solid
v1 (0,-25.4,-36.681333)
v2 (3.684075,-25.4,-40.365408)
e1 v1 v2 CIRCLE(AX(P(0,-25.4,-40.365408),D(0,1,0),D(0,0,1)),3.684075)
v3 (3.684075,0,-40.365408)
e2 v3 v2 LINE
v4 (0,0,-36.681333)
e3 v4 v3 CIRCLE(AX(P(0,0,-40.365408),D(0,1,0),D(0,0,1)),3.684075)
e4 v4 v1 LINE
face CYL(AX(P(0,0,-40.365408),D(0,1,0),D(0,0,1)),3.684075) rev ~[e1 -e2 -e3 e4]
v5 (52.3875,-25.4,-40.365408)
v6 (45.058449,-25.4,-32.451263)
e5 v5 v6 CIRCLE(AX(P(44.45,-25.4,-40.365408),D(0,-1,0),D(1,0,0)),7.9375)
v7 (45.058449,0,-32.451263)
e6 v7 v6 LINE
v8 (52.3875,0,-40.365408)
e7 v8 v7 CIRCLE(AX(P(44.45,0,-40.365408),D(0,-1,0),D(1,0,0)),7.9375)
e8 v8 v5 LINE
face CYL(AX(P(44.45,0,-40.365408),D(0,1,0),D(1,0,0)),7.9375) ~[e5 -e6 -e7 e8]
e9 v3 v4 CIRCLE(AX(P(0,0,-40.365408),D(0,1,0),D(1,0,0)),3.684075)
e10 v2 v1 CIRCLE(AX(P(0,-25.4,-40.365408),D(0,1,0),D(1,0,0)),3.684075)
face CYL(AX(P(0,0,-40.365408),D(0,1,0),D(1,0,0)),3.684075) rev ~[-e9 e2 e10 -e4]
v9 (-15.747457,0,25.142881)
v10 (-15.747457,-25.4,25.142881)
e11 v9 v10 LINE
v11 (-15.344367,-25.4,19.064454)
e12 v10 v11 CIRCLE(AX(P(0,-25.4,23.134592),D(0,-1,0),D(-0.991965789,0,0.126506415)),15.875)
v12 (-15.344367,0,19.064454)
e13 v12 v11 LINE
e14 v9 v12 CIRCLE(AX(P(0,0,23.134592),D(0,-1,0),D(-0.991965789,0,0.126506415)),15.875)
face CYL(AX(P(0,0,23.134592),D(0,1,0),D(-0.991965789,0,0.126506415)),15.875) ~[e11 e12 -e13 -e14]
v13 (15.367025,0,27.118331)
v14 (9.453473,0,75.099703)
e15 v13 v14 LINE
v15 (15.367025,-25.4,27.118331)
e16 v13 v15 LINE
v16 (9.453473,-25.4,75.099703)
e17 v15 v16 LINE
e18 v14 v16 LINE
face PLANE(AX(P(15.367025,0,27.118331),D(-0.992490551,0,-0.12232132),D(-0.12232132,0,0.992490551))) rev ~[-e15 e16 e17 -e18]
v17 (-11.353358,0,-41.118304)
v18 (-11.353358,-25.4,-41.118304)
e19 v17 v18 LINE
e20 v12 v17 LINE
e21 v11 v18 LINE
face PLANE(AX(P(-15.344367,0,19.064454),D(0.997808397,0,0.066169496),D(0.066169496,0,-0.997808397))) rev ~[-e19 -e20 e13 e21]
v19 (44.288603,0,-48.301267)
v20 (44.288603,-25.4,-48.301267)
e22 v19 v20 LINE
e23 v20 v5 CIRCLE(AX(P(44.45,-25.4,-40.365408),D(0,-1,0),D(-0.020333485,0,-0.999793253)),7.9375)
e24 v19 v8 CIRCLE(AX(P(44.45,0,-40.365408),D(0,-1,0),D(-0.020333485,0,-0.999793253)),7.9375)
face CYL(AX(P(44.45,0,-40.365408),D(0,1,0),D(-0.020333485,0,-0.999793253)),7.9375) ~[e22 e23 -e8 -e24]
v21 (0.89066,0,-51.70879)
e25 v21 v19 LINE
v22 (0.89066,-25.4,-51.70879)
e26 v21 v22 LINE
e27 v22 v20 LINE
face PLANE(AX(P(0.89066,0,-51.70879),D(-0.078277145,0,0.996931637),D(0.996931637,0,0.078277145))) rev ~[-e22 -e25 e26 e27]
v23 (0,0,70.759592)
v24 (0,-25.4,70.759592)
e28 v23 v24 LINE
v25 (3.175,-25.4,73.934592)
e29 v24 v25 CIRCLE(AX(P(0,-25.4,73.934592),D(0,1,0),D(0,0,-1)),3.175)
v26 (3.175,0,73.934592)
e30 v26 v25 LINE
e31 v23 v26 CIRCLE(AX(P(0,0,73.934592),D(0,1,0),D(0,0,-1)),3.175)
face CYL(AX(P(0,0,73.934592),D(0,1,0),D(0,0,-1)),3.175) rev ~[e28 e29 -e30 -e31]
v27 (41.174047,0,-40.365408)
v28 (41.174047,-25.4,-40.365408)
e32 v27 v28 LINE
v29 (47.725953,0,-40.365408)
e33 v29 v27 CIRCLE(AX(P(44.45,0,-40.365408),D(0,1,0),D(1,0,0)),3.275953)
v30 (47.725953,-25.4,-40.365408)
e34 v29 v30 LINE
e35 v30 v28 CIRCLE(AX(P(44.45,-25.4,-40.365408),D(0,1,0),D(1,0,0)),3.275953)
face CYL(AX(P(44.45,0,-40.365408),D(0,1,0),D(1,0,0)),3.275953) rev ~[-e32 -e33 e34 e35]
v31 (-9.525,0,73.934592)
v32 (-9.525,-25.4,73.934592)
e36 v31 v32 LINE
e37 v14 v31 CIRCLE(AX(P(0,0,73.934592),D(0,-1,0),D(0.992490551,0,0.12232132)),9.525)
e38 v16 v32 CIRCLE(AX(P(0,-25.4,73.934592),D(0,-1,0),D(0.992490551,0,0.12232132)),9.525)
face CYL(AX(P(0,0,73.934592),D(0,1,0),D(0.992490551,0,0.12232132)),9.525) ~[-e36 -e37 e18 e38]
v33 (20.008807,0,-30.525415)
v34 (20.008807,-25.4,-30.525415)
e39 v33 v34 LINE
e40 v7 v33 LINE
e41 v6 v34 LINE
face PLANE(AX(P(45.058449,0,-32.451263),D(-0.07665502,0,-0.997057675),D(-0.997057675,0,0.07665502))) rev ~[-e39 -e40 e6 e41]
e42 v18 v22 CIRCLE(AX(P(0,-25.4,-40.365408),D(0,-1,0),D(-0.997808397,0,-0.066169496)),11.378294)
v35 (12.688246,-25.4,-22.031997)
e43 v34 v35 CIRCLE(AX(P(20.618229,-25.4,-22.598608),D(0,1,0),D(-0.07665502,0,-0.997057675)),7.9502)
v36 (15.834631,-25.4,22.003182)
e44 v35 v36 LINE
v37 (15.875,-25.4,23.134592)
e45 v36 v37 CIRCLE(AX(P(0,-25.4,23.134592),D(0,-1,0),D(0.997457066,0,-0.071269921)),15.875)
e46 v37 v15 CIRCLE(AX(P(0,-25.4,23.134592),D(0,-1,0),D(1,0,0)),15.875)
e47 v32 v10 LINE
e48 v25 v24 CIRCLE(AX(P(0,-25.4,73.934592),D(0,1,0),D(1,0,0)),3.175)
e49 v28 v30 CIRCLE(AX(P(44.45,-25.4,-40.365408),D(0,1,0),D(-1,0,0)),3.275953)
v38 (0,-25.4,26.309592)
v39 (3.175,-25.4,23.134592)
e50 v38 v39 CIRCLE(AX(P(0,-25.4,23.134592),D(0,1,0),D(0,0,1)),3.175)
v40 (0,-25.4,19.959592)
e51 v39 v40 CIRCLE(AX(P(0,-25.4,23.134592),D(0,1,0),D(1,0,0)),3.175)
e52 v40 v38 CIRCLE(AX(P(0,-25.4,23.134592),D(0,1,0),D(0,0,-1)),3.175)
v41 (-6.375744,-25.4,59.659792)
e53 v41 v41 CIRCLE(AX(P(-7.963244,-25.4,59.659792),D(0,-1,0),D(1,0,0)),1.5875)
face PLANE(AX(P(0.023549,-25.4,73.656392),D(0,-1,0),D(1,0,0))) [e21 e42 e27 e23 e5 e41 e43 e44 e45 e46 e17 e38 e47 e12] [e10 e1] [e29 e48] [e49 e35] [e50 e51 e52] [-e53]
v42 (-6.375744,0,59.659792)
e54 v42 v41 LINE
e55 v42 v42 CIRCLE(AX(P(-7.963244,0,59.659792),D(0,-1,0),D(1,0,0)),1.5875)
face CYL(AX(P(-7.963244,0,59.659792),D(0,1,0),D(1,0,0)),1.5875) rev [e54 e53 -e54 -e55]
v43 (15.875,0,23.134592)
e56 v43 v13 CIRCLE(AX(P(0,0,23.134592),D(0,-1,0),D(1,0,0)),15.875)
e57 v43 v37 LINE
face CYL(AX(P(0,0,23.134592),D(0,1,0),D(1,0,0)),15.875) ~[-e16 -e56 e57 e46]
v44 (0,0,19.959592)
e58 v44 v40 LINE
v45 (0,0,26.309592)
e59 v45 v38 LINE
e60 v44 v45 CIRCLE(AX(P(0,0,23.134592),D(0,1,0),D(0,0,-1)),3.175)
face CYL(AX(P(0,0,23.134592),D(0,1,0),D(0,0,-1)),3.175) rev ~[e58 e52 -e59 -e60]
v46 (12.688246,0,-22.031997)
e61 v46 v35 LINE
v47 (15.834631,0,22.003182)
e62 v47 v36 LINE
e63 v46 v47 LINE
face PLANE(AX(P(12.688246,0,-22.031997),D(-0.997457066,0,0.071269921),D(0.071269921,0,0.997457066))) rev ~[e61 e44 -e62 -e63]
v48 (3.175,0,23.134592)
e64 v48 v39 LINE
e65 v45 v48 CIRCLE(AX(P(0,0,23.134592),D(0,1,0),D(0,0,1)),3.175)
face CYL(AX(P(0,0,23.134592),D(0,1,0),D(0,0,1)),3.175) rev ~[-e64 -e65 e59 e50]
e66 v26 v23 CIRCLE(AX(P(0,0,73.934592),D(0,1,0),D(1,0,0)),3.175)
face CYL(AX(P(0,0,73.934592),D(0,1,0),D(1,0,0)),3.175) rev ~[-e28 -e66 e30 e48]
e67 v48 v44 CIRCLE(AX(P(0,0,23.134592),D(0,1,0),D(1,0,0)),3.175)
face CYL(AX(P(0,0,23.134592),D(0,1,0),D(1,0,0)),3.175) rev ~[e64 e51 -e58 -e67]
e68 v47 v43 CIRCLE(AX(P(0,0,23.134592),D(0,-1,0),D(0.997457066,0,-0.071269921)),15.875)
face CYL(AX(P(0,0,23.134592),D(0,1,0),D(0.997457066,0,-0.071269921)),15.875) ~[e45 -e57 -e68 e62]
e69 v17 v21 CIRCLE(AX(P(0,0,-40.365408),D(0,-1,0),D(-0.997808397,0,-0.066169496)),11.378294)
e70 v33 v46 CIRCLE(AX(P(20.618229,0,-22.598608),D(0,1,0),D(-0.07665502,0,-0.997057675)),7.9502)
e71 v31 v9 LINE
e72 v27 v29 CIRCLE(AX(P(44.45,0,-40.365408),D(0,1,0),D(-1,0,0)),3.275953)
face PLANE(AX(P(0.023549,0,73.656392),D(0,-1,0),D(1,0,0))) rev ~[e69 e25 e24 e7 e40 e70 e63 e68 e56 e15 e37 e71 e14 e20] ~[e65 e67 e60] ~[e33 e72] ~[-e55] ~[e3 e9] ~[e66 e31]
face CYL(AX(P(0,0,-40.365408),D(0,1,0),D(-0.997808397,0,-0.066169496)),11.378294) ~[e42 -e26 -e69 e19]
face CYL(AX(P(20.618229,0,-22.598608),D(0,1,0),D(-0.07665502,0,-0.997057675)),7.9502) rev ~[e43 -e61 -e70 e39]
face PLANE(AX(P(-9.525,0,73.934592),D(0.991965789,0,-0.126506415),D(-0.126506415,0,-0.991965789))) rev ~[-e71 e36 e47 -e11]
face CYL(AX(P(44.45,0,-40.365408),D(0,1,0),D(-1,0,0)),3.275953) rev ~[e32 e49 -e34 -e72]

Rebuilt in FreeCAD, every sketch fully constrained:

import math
import FreeCAD as App
import Part
import Sketcher
Q = App.Units.Quantity

doc = App.newDocument("Part")
body = doc.addObject("PartDesign::Body", "Body")

# Sketch on XZ plane
sketch1 = doc.addObject("Sketcher::SketchObject", "Sketch")
body.addObject(sketch1)
sketch1.AttachmentSupport = (doc.XZ_Plane, [""])
sketch1.MapMode = "FlatFace"
sketch1.addGeometry([
    Part.ArcOfCircle(Part.Circle(App.Vector(0, -40.4, 0), App.Vector(0, 0, 1), 11.4), math.radians(-176), math.radians(-86)),  # 0
    Part.LineSegment(App.Vector(0.9, -51.7, 0), App.Vector(44.3, -48.3, 0)),  # 1
    Part.ArcOfCircle(Part.Circle(App.Vector(44.5, -40.4, 0), App.Vector(0, 0, 1), 7.9), math.radians(-91), math.radians(0)),  # 2
    Part.ArcOfCircle(Part.Circle(App.Vector(44.5, -40.4, 0), App.Vector(0, 0, 1), 7.9), math.radians(0), math.radians(86)),  # 3
    Part.LineSegment(App.Vector(45.1, -32.5, 0), App.Vector(20, -30.5, 0)),  # 4
    Part.ArcOfCircle(Part.Circle(App.Vector(20.6, -22.6, 0), App.Vector(0, 0, 1), 8), math.radians(176), math.radians(266)),  # 5
    Part.LineSegment(App.Vector(12.7, -22, 0), App.Vector(15.8, 22, 0)),  # 6
    Part.ArcOfCircle(Part.Circle(App.Vector(0, 23.1, 0), App.Vector(0, 0, 1), 15.9), math.radians(-4.09), math.radians(0)),  # 7
    Part.ArcOfCircle(Part.Circle(App.Vector(0, 23.1, 0), App.Vector(0, 0, 1), 15.9), math.radians(0), math.radians(14.53)),  # 8
    Part.LineSegment(App.Vector(15.4, 27.1, 0), App.Vector(9.5, 75.1, 0)),  # 9
    Part.ArcOfCircle(Part.Circle(App.Vector(0, 73.9, 0), App.Vector(0, 0, 1), 9.5), math.radians(7), math.radians(180)),  # 10
    Part.LineSegment(App.Vector(-9.5, 73.9, 0), App.Vector(-15.7, 25.1, 0)),  # 11
    Part.ArcOfCircle(Part.Circle(App.Vector(0, 23.1, 0), App.Vector(0, 0, 1), 15.9), math.radians(173), math.radians(195)),  # 12
    Part.LineSegment(App.Vector(-15.3, 19.1, 0), App.Vector(-11.4, -41.1, 0)),  # 13
    Part.ArcOfCircle(Part.Circle(App.Vector(0, -40.4, 0), App.Vector(0, 0, 1), 3.7), math.radians(90), math.radians(360)),  # 14
    Part.ArcOfCircle(Part.Circle(App.Vector(0, -40.4, 0), App.Vector(0, 0, 1), 3.7), math.radians(0), math.radians(90)),  # 15
    Part.ArcOfCircle(Part.Circle(App.Vector(44.5, -40.4, 0), App.Vector(0, 0, 1), 3.3), math.radians(0), math.radians(180)),  # 16
    Part.ArcOfCircle(Part.Circle(App.Vector(44.5, -40.4, 0), App.Vector(0, 0, 1), 3.3), math.radians(180), math.radians(360)),  # 17
    Part.ArcOfCircle(Part.Circle(App.Vector(0, 23.1, 0), App.Vector(0, 0, 1), 3.2), math.radians(0), math.radians(90)),  # 18
    Part.ArcOfCircle(Part.Circle(App.Vector(0, 23.1, 0), App.Vector(0, 0, 1), 3.2), math.radians(-90), math.radians(0)),  # 19
    Part.ArcOfCircle(Part.Circle(App.Vector(0, 23.1, 0), App.Vector(0, 0, 1), 3.2), math.radians(90), math.radians(270)),  # 20
    Part.Circle(App.Vector(-8, 59.7, 0), App.Vector(0, 0, 1), 1.6),  # 21
    Part.ArcOfCircle(Part.Circle(App.Vector(0, 73.9, 0), App.Vector(0, 0, 1), 3.2), math.radians(0), math.radians(270)),  # 22
    Part.ArcOfCircle(Part.Circle(App.Vector(0, 73.9, 0), App.Vector(0, 0, 1), 3.2), math.radians(-90), math.radians(0)),  # 23
], False)
sketch1.addConstraint([
    Sketcher.Constraint("Tangent", 0, 2, 1, 1),
    Sketcher.Constraint("Coincident", 1, 2, 2, 1),
    Sketcher.Constraint("Tangent", 2, 2, 3, 1),
    Sketcher.Constraint("Tangent", 3, 2, 4, 1),
    Sketcher.Constraint("Tangent", 4, 2, 5, 2),
    Sketcher.Constraint("Tangent", 5, 1, 6, 1),
    Sketcher.Constraint("Tangent", 6, 2, 7, 1),
    Sketcher.Constraint("Tangent", 7, 2, 8, 1),
    Sketcher.Constraint("Coincident", 8, 2, 9, 1),
    Sketcher.Constraint("Tangent", 9, 2, 10, 1),
    Sketcher.Constraint("Coincident", 10, 2, 11, 1),
    Sketcher.Constraint("Tangent", 11, 2, 12, 1),
    Sketcher.Constraint("Coincident", 12, 2, 13, 1),
    Sketcher.Constraint("Tangent", 13, 2, 0, 1),
    Sketcher.Constraint("Tangent", 14, 1, 15, 2),
    Sketcher.Constraint("Coincident", 15, 1, 14, 2),
    Sketcher.Constraint("Tangent", 16, 1, 17, 2),
    Sketcher.Constraint("Coincident", 17, 1, 16, 2),
    Sketcher.Constraint("Tangent", 18, 1, 19, 2),
    Sketcher.Constraint("Tangent", 19, 1, 20, 2),
    Sketcher.Constraint("Tangent", 20, 1, 18, 2),
    Sketcher.Constraint("Tangent", 22, 1, 23, 2),
    Sketcher.Constraint("Coincident", 23, 1, 22, 2),
    Sketcher.Constraint("Coincident", 12, 3, 7, 3),
    Sketcher.Constraint("Coincident", 14, 3, 0, 3),
    Sketcher.Constraint("Coincident", 16, 3, 2, 3),
    Sketcher.Constraint("Coincident", 18, 3, 7, 3),
    Sketcher.Constraint("Coincident", 22, 3, 10, 3),
    Sketcher.Constraint("Equal", 2, 3),
    Sketcher.Constraint("Equal", 7, 8),
    Sketcher.Constraint("Equal", 8, 12),
    Sketcher.Constraint("Equal", 20, 22),
    Sketcher.Constraint("PointOnObject", 0, 3, -2),
    Sketcher.Constraint("PointOnObject", 7, 3, -2),
    Sketcher.Constraint("PointOnObject", 10, 3, -2),
    Sketcher.Constraint("PointOnObject", 14, 1, -2),
    Sketcher.Constraint("PointOnObject", 19, 1, -2),
    Sketcher.Constraint("PointOnObject", 20, 1, -2),
    Sketcher.Constraint("PointOnObject", 23, 1, -2),
    Sketcher.Constraint("Horizontal", 0, 3, 2, 3),
    Sketcher.Constraint("Horizontal", 17, 3, 2, 2),
    Sketcher.Constraint("Horizontal", 20, 3, 7, 2),
    Sketcher.Constraint("Horizontal", 23, 3, 10, 2),
    Sketcher.Constraint("Horizontal", 2, 2, 15, 1),
    Sketcher.Constraint("Horizontal", 15, 1, 16, 1),
    Sketcher.Constraint("Horizontal", 16, 1, 17, 1),
    Sketcher.Constraint("Horizontal", 7, 2, 18, 1),
    Sketcher.Constraint("Horizontal", 10, 2, 22, 1),
    Sketcher.Constraint("Diameter", 21, Q("0.125 in")),
    Sketcher.Constraint("Radius", 2, Q("0.3125 in")),
    Sketcher.Constraint("Radius", 5, Q("0.313 in")),
    Sketcher.Constraint("Radius", 7, Q("0.625 in")),
    Sketcher.Constraint("Radius", 10, Q("0.375 in")),
    Sketcher.Constraint("Radius", 18, Q("0.125 in")),
    Sketcher.Constraint("DistanceY", 7, 3, 10, 3, Q("2 in")),
    Sketcher.Constraint("DistanceY", 0, 3, 7, 3, Q("2.5 in")),
    Sketcher.Constraint("DistanceX", -1, 1, 2, 3, Q("1.75 in")),
    Sketcher.Constraint("DistanceY", 21, 3, 10, 3, Q("0.562 in")),
    Sketcher.Constraint("Radius", 0, Q("11.378294 mm")),
    Sketcher.Constraint("Radius", 14, Q("3.684075 mm")),
    Sketcher.Constraint("Radius", 16, Q("3.275953 mm")),
    Sketcher.Constraint("DistanceY", 0, 3, 5, 3, Q("17.766801 mm")),
    Sketcher.Constraint("Distance", 9, Q("48.344412 mm")),
    Sketcher.Constraint("DistanceY", 0, 3, -1, 1, Q("40.365408 mm")),
    Sketcher.Constraint("DistanceX", -1, 1, 5, 3, Q("20.618229 mm")),
    Sketcher.Constraint("DistanceX", -1, 1, 0, 2, Q("0.89066 mm")),
    Sketcher.Constraint("DistanceX", 11, 2, 12, 2, Q("0.40309 mm")),
    Sketcher.Constraint("DistanceX", 21, 3, -1, 1, Q("7.963244 mm")),
])
pad1 = doc.addObject("PartDesign::Pad", "Pad")
body.addObject(pad1)
pad1.Profile = sketch1
pad1.Length = Q("1 in")

doc.recompute()
